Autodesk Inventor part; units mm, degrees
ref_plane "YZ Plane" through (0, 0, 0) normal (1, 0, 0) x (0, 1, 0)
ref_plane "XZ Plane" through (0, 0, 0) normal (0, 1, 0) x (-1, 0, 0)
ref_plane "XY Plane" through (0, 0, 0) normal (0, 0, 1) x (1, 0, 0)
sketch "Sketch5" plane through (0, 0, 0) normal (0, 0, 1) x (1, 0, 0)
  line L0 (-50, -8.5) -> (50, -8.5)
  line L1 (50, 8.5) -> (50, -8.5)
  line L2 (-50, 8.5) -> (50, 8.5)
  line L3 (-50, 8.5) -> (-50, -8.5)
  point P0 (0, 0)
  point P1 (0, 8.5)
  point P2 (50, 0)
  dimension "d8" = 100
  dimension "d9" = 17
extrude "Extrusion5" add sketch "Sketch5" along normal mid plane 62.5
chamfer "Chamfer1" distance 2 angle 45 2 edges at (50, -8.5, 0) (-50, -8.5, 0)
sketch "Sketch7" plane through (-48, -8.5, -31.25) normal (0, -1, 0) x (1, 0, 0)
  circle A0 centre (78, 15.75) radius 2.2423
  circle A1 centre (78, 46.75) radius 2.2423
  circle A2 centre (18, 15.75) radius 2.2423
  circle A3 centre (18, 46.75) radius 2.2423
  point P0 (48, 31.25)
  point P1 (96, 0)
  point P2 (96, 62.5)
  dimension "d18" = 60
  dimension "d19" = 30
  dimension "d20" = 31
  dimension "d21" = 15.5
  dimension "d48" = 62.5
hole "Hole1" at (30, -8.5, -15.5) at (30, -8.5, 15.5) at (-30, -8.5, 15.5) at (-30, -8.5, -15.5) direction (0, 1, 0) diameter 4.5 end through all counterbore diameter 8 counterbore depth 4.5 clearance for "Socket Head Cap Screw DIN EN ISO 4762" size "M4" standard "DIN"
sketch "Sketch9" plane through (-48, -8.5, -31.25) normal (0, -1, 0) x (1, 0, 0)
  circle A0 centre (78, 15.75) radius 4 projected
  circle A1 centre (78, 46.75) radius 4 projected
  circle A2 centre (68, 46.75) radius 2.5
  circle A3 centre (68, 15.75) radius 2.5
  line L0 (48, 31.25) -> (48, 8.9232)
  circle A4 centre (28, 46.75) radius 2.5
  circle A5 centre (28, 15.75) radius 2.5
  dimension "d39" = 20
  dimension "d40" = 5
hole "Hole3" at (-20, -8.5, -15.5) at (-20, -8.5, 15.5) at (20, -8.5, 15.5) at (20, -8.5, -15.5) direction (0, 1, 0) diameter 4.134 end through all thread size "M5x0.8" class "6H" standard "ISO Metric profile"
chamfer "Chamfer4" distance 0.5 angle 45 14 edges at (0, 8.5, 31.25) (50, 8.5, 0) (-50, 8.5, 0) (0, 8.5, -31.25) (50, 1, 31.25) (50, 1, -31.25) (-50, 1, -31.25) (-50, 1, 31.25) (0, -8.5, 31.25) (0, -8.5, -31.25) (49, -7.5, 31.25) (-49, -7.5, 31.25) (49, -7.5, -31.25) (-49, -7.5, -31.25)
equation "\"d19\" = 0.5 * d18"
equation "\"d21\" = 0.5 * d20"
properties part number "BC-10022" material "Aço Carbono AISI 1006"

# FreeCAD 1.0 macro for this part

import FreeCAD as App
import Part
import Sketcher
from FreeCAD import Vector
Q = App.Units.Quantity


def edges_at(feature, points):
    """Names of the edges that pass closest to the given points."""
    edges = feature.Shape.Edges
    near = lambda p: min(range(len(edges)), key=lambda i: edges[i].distToShape(Part.Vertex(*p))[0])
    return sorted({f"Edge{near(p) + 1}" for p in points})

doc = App.newDocument("Part")
body = doc.addObject("PartDesign::Body", "Body")

# Sketch on XY plane
sketch1 = doc.addObject("Sketcher::SketchObject", "Sketch")
body.addObject(sketch1)
sketch1.AttachmentSupport = (doc.XY_Plane, [""])
sketch1.MapMode = "FlatFace"
sketch1.addGeometry([
    Part.LineSegment(Vector(-50, 8.5, 0), Vector(-50, -8.5, 0)),
    Part.LineSegment(Vector(-50, -8.5, 0), Vector(50, -8.5, 0)),
    Part.LineSegment(Vector(50, -8.5, 0), Vector(50, 8.5, 0)),
    Part.LineSegment(Vector(50, 8.5, 0), Vector(-50, 8.5, 0)),
], False)
sketch1.addConstraint([
    Sketcher.Constraint("Coincident", 0, 2, 1, 1),
    Sketcher.Constraint("Coincident", 1, 2, 2, 1),
    Sketcher.Constraint("Coincident", 2, 2, 3, 1),
    Sketcher.Constraint("Coincident", 3, 2, 0, 1),
    Sketcher.Constraint("Vertical", 0),
    Sketcher.Constraint("Horizontal", 1),
    Sketcher.Constraint("Vertical", 2),
    Sketcher.Constraint("Horizontal", 3),
    Sketcher.Constraint("Symmetric", 0, 2, 2, 2, -1, 1),
    Sketcher.Constraint("DistanceX", 1, 1, 1, 2, Q("100 mm")),
    Sketcher.Constraint("DistanceY", 0, 2, 0, 1, Q("17 mm")),
])
pad1 = doc.addObject("PartDesign::Pad", "Pad")
body.addObject(pad1)
pad1.Profile = sketch1
pad1.Length = 62.5
pad1.Midplane = True
doc.recompute()

chamfer = doc.addObject("PartDesign::Chamfer", "Chamfer")
body.addObject(chamfer)
chamfer.Base = (pad1, edges_at(pad1, [(50, -8.5, 0), (-50, -8.5, 0)]))
chamfer.Size = 2

# Sketch on XZ plane
sketch2 = doc.addObject("Sketcher::SketchObject", "Sketch001")
body.addObject(sketch2)
sketch2.AttachmentSupport = (doc.XZ_Plane, [""])
sketch2.MapMode = "FlatFace"
sketch2.AttachmentOffset = App.Placement(Vector(0, 0, 8.5), App.Rotation())
sketch2.addGeometry([
    Part.Circle(Vector(30, -15.5, 0), Vector(0, 0, 1), 2.25),
    Part.Circle(Vector(30, 15.5, 0), Vector(0, 0, 1), 2.25),
    Part.Circle(Vector(-30, 15.5, 0), Vector(0, 0, 1), 2.25),
    Part.Circle(Vector(-30, -15.5, 0), Vector(0, 0, 1), 2.25),
], False)
sketch2.addConstraint([
    Sketcher.Constraint("Equal", 0, 1),
    Sketcher.Constraint("Equal", 1, 2),
    Sketcher.Constraint("Equal", 2, 3),
    Sketcher.Constraint("Symmetric", 0, 3, 2, 3, -1, 1),
    Sketcher.Constraint("Symmetric", 1, 3, 3, 3, -1, 1),
    Sketcher.Constraint("Symmetric", 1, 3, 2, 3, -2),
    Sketcher.Constraint("Diameter", 0, Q("4.5 mm")),
    Sketcher.Constraint("DistanceX", -1, 1, 0, 3, Q("30 mm")),
    Sketcher.Constraint("DistanceY", 0, 3, 1, 3, Q("31 mm")),
])
doc.recompute()
hole = doc.addObject("PartDesign::Hole", "Hole")
body.addObject(hole)
hole.Profile = sketch2
hole.ThreadType = "None"
hole.Diameter = 4.5
hole.DepthType = "ThroughAll"
hole.HoleCutType = "Counterbore"
hole.HoleCutDiameter = 8
hole.HoleCutDepth = 4.5

# Sketch on XZ plane
sketch3 = doc.addObject("Sketcher::SketchObject", "Sketch002")
body.addObject(sketch3)
sketch3.AttachmentSupport = (doc.XZ_Plane, [""])
sketch3.MapMode = "FlatFace"
sketch3.AttachmentOffset = App.Placement(Vector(0, 0, 8.5), App.Rotation())
sketch3.addGeometry([
    Part.Circle(Vector(-20, -15.5, 0), Vector(0, 0, 1), 2.067),
    Part.Circle(Vector(-20, 15.5, 0), Vector(0, 0, 1), 2.067),
    Part.Circle(Vector(20, 15.5, 0), Vector(0, 0, 1), 2.067),
    Part.Circle(Vector(20, -15.5, 0), Vector(0, 0, 1), 2.067),
], False)
sketch3.addConstraint([
    Sketcher.Constraint("Equal", 0, 1),
    Sketcher.Constraint("Equal", 1, 2),
    Sketcher.Constraint("Equal", 2, 3),
    Sketcher.Constraint("Symmetric", 0, 3, 2, 3, -1, 1),
    Sketcher.Constraint("Symmetric", 1, 3, 3, 3, -1, 1),
    Sketcher.Constraint("Symmetric", 1, 3, 2, 3, -2),
    Sketcher.Constraint("Diameter", 0, Q("4.134 mm")),
    Sketcher.Constraint("DistanceX", 0, 3, -1, 1, Q("20 mm")),
    Sketcher.Constraint("DistanceY", 0, 3, 1, 3, Q("31 mm")),
])
doc.recompute()
hole2 = doc.addObject("PartDesign::Hole", "Hole001")
body.addObject(hole2)
hole2.Profile = sketch3
hole2.ThreadType = "None"
hole2.Diameter = 4.134
hole2.DepthType = "ThroughAll"
doc.recompute()

chamfer2 = doc.addObject("PartDesign::Chamfer", "Chamfer001")
body.addObject(chamfer2)
chamfer2.Base = (hole2, edges_at(hole2, [
    (0, 8.5, 31.25),
    (50, 8.5, 0),
    (-50, 8.5, 0),
    (0, 8.5, -31.25),
    (50, 1, 31.25),
    (50, 1, -31.25),
    (-50, 1, -31.25),
    (-50, 1, 31.25),
    (0, -8.5, 31.25),
    (0, -8.5, -31.25),
    (49, -7.5, 31.25),
    (-49, -7.5, 31.25),
    (49, -7.5, -31.25),
    (-49, -7.5, -31.25),
]))
chamfer2.Size = 0.5

doc.recompute()
